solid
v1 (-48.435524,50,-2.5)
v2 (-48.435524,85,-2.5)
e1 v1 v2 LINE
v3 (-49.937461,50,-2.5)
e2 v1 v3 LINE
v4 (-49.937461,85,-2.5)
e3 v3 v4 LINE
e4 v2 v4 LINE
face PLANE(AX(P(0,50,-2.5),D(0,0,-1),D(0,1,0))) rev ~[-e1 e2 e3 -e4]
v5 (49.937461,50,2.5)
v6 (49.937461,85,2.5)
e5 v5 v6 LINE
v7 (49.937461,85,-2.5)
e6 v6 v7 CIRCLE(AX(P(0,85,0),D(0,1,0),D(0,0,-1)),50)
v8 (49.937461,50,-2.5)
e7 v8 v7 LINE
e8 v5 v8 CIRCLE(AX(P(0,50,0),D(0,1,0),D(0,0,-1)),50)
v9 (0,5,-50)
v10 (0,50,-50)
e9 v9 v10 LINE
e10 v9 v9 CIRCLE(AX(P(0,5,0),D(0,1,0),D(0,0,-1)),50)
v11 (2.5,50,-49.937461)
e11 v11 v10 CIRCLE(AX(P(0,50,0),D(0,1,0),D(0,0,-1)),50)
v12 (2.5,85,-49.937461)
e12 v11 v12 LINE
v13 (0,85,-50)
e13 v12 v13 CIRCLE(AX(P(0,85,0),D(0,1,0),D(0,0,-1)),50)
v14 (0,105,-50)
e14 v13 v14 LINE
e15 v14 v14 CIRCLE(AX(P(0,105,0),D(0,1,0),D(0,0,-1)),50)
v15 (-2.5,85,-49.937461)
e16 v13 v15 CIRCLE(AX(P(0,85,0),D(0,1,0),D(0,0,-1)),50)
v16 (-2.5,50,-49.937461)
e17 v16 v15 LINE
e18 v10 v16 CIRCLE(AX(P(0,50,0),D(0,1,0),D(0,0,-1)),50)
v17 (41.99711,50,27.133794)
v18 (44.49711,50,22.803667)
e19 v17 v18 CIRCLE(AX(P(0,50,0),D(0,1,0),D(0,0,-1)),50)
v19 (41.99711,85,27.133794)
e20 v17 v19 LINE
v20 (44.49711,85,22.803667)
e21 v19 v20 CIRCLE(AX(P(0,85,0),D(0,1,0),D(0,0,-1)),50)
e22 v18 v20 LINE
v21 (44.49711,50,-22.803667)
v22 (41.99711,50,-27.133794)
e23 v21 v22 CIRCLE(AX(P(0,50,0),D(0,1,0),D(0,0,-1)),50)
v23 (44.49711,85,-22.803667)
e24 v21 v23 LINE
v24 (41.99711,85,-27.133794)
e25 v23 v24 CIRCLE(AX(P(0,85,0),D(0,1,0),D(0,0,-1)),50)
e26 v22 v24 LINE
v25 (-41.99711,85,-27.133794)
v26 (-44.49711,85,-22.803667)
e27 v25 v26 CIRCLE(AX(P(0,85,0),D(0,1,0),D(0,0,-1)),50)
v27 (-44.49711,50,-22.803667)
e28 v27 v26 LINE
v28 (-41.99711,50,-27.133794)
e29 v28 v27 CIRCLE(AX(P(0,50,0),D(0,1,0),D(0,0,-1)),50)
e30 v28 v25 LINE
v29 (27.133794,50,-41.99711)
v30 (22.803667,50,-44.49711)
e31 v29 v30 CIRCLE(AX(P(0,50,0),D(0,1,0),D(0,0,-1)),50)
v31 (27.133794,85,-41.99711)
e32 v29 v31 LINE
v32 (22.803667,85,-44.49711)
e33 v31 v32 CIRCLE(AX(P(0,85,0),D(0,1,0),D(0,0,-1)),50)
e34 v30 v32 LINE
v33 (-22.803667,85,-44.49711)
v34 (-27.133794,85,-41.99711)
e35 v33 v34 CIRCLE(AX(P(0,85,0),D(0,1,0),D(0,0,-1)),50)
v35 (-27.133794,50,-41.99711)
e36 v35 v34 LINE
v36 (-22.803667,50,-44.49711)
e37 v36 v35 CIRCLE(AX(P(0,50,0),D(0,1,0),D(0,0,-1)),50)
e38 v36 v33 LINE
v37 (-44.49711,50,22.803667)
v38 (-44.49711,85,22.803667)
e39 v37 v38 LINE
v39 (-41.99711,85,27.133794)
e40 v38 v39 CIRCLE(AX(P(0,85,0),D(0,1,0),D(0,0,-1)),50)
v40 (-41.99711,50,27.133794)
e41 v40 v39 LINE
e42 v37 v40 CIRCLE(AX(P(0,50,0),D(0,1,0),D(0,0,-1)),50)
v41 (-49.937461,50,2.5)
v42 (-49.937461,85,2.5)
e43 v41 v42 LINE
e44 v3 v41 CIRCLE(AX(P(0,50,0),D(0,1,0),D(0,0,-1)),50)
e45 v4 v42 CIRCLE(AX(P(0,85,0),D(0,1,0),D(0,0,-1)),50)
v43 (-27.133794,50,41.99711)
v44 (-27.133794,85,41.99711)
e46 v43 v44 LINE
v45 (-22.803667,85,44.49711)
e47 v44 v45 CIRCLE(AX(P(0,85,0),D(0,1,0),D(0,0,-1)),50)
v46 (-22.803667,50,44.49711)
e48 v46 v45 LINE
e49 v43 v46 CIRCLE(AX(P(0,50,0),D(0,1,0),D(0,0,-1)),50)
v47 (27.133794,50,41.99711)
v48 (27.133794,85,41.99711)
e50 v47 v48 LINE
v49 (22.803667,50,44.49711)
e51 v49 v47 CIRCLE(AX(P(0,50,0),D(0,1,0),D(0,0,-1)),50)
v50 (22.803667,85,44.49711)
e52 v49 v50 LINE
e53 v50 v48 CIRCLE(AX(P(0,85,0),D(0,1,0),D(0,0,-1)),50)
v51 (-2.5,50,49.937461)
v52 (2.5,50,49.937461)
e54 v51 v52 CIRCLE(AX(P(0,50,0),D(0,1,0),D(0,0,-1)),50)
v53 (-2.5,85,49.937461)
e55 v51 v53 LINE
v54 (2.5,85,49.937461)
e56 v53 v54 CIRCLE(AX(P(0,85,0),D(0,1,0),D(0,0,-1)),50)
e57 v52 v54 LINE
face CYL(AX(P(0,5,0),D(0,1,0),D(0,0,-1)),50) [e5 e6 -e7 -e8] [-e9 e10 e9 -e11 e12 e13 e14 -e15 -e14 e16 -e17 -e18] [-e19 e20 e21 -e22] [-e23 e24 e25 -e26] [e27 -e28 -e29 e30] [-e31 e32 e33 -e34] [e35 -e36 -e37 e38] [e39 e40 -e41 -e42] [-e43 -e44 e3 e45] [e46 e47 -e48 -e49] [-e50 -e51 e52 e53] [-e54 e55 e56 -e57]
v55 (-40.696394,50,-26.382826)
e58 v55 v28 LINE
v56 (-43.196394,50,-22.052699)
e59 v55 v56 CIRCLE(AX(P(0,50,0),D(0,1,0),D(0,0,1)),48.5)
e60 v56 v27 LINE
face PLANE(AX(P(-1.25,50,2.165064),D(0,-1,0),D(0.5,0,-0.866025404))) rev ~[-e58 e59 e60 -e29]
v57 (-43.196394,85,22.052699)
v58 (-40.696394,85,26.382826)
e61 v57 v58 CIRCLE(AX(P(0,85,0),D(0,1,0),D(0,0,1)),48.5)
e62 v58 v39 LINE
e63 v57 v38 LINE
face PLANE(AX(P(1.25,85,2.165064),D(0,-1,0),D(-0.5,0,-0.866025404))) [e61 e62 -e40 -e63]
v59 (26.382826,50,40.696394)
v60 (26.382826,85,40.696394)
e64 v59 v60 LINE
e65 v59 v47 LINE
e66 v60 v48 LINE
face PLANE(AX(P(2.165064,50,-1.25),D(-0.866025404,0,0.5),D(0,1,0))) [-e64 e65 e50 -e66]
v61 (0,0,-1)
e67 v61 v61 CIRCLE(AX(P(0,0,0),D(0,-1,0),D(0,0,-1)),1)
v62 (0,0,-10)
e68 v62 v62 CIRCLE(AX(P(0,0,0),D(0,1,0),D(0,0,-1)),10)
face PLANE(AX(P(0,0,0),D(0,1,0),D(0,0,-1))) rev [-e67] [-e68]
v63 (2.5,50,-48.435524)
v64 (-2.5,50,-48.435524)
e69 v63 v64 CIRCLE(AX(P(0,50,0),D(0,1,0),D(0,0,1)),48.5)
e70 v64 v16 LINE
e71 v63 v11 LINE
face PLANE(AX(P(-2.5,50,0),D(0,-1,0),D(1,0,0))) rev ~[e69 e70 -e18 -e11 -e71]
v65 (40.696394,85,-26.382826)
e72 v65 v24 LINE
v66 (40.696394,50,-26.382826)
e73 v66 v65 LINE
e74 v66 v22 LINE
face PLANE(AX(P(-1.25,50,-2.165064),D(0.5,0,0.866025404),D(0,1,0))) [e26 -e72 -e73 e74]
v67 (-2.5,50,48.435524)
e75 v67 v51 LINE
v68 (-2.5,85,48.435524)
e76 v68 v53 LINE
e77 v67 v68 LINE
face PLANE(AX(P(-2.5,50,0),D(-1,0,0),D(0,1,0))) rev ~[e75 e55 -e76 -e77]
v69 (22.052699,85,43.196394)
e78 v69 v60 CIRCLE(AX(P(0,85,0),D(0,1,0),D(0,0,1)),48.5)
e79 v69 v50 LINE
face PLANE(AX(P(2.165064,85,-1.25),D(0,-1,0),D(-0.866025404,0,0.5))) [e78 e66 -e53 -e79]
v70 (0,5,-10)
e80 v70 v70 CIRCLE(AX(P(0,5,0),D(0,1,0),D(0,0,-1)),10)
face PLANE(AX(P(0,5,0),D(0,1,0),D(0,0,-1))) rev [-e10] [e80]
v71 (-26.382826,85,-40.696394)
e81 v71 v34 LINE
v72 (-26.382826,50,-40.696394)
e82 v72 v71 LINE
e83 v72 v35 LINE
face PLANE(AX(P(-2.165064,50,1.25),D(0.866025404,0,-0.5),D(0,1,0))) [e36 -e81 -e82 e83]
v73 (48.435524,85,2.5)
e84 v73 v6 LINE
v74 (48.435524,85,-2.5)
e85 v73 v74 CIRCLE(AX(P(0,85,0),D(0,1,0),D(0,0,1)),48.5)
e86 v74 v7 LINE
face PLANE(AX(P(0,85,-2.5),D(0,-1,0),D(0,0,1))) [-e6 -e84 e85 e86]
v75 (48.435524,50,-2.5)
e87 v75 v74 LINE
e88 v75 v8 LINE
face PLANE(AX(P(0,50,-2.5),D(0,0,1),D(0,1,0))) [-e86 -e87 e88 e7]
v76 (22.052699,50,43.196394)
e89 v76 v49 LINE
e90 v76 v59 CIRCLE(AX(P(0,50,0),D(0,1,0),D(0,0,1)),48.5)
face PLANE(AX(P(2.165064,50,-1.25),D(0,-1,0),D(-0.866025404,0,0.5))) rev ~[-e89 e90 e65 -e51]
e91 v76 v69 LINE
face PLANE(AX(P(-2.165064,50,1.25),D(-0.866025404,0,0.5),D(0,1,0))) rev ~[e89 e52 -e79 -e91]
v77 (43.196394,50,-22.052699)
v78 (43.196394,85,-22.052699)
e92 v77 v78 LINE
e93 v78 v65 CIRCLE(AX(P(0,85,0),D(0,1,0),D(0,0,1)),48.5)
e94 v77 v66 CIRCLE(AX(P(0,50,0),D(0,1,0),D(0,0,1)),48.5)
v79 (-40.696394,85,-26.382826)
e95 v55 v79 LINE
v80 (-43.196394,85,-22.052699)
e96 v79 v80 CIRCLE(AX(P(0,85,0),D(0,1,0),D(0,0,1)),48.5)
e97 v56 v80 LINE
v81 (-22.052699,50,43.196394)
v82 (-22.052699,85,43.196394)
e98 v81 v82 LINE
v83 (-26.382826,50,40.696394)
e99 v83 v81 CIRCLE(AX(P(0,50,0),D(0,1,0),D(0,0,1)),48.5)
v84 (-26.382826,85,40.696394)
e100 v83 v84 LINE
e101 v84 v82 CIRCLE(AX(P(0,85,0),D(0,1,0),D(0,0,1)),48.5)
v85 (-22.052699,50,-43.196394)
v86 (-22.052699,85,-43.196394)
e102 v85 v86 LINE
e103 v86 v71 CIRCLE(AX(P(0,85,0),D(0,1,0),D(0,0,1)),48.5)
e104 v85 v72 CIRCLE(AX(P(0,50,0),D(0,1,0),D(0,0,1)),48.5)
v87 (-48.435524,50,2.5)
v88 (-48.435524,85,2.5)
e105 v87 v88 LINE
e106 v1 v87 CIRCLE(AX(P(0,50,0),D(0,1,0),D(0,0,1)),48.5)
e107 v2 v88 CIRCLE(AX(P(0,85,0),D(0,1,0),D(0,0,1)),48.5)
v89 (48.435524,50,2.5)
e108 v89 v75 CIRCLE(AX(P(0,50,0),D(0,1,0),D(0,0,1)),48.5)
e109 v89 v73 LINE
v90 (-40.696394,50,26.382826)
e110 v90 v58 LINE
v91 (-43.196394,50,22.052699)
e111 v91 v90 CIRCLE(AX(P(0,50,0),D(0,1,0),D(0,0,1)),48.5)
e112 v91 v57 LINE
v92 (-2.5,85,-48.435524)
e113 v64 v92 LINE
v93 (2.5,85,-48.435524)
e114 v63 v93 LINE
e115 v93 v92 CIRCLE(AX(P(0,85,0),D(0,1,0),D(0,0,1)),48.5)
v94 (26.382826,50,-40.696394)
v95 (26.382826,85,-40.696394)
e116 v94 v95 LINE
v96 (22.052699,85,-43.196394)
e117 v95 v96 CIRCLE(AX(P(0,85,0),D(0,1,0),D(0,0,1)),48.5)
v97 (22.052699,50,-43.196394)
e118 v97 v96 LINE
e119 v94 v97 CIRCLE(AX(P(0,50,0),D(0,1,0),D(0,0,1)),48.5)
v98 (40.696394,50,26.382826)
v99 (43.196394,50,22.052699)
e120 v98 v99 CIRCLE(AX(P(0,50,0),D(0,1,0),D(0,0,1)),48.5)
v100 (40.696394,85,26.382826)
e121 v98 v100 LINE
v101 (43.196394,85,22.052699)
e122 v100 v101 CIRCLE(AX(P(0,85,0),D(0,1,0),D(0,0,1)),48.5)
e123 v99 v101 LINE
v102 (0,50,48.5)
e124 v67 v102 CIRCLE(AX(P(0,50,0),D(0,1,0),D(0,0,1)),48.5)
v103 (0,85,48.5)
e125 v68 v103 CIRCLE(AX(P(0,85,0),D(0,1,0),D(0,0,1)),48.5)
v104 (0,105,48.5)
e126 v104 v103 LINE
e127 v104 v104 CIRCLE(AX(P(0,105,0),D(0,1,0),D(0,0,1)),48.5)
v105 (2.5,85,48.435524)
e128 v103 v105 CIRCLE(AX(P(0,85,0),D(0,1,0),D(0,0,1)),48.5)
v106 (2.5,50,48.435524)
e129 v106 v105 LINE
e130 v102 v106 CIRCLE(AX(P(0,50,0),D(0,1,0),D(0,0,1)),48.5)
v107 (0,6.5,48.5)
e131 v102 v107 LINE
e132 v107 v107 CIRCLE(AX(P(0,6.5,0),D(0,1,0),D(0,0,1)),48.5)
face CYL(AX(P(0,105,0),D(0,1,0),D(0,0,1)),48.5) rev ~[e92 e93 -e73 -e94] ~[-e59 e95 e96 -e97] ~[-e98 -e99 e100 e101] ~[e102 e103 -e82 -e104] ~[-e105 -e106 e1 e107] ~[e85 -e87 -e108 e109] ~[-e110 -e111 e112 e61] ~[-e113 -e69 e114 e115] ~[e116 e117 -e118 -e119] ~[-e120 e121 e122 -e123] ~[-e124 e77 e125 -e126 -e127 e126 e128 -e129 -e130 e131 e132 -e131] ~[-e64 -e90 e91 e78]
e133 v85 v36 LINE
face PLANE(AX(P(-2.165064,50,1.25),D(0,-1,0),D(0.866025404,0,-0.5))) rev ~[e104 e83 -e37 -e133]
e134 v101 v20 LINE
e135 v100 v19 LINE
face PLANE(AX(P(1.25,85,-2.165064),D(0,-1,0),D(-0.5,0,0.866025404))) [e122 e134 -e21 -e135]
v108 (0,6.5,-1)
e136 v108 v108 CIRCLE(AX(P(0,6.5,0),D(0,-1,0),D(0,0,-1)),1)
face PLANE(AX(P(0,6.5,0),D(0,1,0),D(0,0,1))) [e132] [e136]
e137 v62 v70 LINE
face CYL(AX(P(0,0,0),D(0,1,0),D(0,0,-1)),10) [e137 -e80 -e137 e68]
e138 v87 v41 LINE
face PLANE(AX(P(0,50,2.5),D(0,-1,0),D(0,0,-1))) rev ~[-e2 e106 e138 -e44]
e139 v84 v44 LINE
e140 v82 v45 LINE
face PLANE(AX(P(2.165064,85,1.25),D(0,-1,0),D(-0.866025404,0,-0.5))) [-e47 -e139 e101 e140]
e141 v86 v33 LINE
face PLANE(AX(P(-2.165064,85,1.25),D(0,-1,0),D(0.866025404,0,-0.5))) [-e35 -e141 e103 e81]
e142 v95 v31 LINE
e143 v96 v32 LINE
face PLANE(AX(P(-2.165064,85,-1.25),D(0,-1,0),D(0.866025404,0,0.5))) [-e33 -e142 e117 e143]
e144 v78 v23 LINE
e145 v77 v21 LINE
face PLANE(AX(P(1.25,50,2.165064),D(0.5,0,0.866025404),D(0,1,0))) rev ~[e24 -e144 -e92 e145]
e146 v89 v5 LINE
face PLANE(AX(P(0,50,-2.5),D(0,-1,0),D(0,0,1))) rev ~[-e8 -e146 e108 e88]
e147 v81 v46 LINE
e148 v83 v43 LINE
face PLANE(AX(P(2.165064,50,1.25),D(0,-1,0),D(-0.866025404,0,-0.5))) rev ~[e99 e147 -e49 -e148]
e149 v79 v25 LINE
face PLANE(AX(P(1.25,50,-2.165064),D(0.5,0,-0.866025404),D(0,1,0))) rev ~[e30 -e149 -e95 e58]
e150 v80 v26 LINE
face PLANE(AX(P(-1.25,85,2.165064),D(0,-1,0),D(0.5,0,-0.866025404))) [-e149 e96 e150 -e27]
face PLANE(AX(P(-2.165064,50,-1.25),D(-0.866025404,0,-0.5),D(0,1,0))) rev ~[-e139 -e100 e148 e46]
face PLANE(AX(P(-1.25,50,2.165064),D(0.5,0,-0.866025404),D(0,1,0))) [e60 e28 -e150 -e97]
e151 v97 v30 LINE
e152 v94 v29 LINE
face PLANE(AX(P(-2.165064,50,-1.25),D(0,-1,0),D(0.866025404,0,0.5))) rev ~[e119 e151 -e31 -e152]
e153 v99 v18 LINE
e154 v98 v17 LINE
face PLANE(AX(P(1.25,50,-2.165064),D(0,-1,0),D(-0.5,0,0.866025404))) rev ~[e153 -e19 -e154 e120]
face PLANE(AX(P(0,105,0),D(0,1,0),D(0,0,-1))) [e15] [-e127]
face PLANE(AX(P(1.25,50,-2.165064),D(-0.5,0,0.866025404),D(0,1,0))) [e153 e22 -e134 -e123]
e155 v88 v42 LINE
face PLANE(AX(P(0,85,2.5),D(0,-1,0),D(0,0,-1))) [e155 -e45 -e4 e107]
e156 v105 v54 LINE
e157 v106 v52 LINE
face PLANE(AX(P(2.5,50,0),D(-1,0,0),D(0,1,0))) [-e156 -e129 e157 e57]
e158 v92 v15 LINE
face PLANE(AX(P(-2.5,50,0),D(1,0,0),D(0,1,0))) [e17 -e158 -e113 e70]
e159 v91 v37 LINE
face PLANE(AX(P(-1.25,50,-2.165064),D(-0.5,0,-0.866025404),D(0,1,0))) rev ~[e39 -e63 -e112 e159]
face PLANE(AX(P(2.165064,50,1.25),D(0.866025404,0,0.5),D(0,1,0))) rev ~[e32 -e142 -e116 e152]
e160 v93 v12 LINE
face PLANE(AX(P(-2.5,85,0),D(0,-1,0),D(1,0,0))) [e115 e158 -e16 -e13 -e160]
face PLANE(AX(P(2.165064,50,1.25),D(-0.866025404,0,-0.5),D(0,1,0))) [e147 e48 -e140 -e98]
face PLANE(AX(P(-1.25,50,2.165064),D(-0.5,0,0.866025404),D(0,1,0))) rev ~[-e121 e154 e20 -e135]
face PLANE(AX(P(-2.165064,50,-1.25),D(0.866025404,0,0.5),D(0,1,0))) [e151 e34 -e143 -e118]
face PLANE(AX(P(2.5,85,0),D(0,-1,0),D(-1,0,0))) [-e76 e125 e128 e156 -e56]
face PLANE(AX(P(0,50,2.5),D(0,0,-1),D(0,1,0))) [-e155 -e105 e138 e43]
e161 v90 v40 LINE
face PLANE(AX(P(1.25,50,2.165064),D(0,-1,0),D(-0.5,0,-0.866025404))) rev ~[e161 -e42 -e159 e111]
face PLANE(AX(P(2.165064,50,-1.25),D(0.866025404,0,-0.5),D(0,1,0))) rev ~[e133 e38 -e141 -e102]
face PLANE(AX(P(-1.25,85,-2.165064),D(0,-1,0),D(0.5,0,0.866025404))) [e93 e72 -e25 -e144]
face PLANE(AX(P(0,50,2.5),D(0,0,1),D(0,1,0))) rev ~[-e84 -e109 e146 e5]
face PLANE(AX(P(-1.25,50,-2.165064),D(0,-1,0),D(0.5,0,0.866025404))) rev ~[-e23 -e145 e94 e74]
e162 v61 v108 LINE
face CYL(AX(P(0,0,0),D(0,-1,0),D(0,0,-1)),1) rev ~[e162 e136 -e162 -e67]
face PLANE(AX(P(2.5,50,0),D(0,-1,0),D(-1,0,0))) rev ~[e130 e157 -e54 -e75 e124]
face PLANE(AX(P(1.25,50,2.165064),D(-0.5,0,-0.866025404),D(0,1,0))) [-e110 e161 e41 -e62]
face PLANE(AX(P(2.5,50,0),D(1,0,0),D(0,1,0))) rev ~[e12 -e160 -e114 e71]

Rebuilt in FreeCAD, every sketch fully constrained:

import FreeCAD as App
import Part
import Sketcher
from FreeCAD import Vector
Q = App.Units.Quantity

doc = App.newDocument("Part")
body = doc.addObject("PartDesign::Body", "Body")

# Sketch on XY plane
sketch1 = body.newObject("Sketcher::SketchObject", "Sketch")
sketch1.AttachmentSupport = (doc.getObject("XY_Plane"), [""])
sketch1.MapMode = "FlatFace"
sketch1.addGeometry([
    Part.LineSegment(Vector(-10, 0, 0), Vector(0, 0, 0)),  # 0
    Part.LineSegment(Vector(0, 0, 0), Vector(0, 105, 0)),  # 1
    Part.LineSegment(Vector(0, 105, 0), Vector(-50, 105, 0)),  # 2
    Part.LineSegment(Vector(-50, 105, 0), Vector(-50, 5, 0)),  # 3
    Part.LineSegment(Vector(-50, 5, 0), Vector(-10, 5, 0)),  # 4
    Part.LineSegment(Vector(-10, 5, 0), Vector(-10, 0, 0)),  # 5
], False)
sketch1.addConstraint([
    Sketcher.Constraint("Coincident", 0, 2, 1, 1),
    Sketcher.Constraint("Coincident", 1, 2, 2, 1),
    Sketcher.Constraint("Coincident", 2, 2, 3, 1),
    Sketcher.Constraint("Coincident", 3, 2, 4, 1),
    Sketcher.Constraint("Coincident", 4, 2, 5, 1),
    Sketcher.Constraint("Coincident", 5, 2, 0, 1),
    Sketcher.Constraint("Horizontal", 0),
    Sketcher.Constraint("Vertical", 1),
    Sketcher.Constraint("Horizontal", 2),
    Sketcher.Constraint("Vertical", 3),
    Sketcher.Constraint("Horizontal", 4),
    Sketcher.Constraint("Vertical", 5),
    Sketcher.Constraint("Coincident", 0, 2, -1, 1),
    Sketcher.Constraint("DistanceX", 0, 1, 0, 2, Q("10 mm")),
    Sketcher.Constraint("DistanceX", 2, 2, 2, 1, Q("50 mm")),
    Sketcher.Constraint("DistanceY", 1, 1, 1, 2, Q("105 mm")),
    Sketcher.Constraint("DistanceY", 3, 2, 3, 1, Q("100 mm")),
])
revolution = body.newObject("PartDesign::Revolution", "Revolution")
revolution.Profile = sketch1
revolution.ReferenceAxis = (sketch1, ["V_Axis"])
revolution.Angle = 360

# Sketch on XZ plane
sketch2 = body.newObject("Sketcher::SketchObject", "Sketch001")
sketch2.AttachmentSupport = (doc.getObject("XZ_Plane"), [""])
sketch2.MapMode = "FlatFace"
sketch2.AttachmentOffset = App.Placement(Vector(0, 0, -105), App.Rotation())
sketch2.addGeometry(Part.Circle(Vector(0, 0, 0), Vector(0, 0, 1), 48), False)
sketch2.addConstraint([
    Sketcher.Constraint("Coincident", 0, 3, -1, 1),
    Sketcher.Constraint("Diameter", 0, Q("97 mm")),
])
pocket1 = body.newObject("PartDesign::Pocket", "Pocket")
pocket1.Profile = sketch2
pocket1.Length = 98.5
pocket1.Reversed = True

# Sketch on XZ plane
sketch3 = body.newObject("Sketcher::SketchObject", "Sketch002")
sketch3.AttachmentSupport = (doc.getObject("XZ_Plane"), [""])
sketch3.MapMode = "FlatFace"
sketch3.addGeometry(Part.Circle(Vector(0, 0, 0), Vector(0, 0, 1), 1), False)
sketch3.addConstraint([
    Sketcher.Constraint("Coincident", 0, 3, -1, 1),
    Sketcher.Constraint("Diameter", 0, Q("2 mm")),
])
pocket2 = body.newObject("PartDesign::Pocket", "Pocket001")
pocket2.Profile = sketch3
pocket2.Length = 98.5

# Sketch on XY plane
sketch4 = body.newObject("Sketcher::SketchObject", "Sketch003")
sketch4.AttachmentSupport = (doc.getObject("XY_Plane"), [""])
sketch4.MapMode = "FlatFace"
sketch4.addGeometry([
    Part.LineSegment(Vector(-2, 85, 0), Vector(-2, 50, 0)),
    Part.LineSegment(Vector(-2, 50, 0), Vector(2, 50, 0)),
    Part.LineSegment(Vector(2, 50, 0), Vector(2, 85, 0)),
    Part.LineSegment(Vector(2, 85, 0), Vector(-2, 85, 0)),
], False)
sketch4.addConstraint([
    Sketcher.Constraint("Coincident", 0, 2, 1, 1),
    Sketcher.Constraint("Coincident", 1, 2, 2, 1),
    Sketcher.Constraint("Coincident", 2, 2, 3, 1),
    Sketcher.Constraint("Coincident", 3, 2, 0, 1),
    Sketcher.Constraint("Vertical", 0),
    Sketcher.Constraint("Horizontal", 1),
    Sketcher.Constraint("Vertical", 2),
    Sketcher.Constraint("Horizontal", 3),
    Sketcher.Constraint("DistanceX", 1, 1, 1, 2, Q("5 mm")),
    Sketcher.Constraint("DistanceY", 0, 2, 0, 1, Q("35 mm")),
    Sketcher.Constraint("DistanceY", -1, 1, 0, 2, Q("50 mm")),
    Sketcher.Constraint("DistanceX", 0, 2, -1, 1, Q("2.5 mm")),
])
pocket3 = body.newObject("PartDesign::Pocket", "Pocket002")
pocket3.Profile = sketch4
pocket3.Length = 98.5
doc.recompute()

polarpattern = body.newObject("PartDesign::PolarPattern", "PolarPattern")
polarpattern.Originals = [pocket3]
polarpattern.Axis = (doc.getObject("Y_Axis"), [""])
polarpattern.Angle = 360
polarpattern.Occurrences = 12
body.Tip = polarpattern

doc.recompute()
